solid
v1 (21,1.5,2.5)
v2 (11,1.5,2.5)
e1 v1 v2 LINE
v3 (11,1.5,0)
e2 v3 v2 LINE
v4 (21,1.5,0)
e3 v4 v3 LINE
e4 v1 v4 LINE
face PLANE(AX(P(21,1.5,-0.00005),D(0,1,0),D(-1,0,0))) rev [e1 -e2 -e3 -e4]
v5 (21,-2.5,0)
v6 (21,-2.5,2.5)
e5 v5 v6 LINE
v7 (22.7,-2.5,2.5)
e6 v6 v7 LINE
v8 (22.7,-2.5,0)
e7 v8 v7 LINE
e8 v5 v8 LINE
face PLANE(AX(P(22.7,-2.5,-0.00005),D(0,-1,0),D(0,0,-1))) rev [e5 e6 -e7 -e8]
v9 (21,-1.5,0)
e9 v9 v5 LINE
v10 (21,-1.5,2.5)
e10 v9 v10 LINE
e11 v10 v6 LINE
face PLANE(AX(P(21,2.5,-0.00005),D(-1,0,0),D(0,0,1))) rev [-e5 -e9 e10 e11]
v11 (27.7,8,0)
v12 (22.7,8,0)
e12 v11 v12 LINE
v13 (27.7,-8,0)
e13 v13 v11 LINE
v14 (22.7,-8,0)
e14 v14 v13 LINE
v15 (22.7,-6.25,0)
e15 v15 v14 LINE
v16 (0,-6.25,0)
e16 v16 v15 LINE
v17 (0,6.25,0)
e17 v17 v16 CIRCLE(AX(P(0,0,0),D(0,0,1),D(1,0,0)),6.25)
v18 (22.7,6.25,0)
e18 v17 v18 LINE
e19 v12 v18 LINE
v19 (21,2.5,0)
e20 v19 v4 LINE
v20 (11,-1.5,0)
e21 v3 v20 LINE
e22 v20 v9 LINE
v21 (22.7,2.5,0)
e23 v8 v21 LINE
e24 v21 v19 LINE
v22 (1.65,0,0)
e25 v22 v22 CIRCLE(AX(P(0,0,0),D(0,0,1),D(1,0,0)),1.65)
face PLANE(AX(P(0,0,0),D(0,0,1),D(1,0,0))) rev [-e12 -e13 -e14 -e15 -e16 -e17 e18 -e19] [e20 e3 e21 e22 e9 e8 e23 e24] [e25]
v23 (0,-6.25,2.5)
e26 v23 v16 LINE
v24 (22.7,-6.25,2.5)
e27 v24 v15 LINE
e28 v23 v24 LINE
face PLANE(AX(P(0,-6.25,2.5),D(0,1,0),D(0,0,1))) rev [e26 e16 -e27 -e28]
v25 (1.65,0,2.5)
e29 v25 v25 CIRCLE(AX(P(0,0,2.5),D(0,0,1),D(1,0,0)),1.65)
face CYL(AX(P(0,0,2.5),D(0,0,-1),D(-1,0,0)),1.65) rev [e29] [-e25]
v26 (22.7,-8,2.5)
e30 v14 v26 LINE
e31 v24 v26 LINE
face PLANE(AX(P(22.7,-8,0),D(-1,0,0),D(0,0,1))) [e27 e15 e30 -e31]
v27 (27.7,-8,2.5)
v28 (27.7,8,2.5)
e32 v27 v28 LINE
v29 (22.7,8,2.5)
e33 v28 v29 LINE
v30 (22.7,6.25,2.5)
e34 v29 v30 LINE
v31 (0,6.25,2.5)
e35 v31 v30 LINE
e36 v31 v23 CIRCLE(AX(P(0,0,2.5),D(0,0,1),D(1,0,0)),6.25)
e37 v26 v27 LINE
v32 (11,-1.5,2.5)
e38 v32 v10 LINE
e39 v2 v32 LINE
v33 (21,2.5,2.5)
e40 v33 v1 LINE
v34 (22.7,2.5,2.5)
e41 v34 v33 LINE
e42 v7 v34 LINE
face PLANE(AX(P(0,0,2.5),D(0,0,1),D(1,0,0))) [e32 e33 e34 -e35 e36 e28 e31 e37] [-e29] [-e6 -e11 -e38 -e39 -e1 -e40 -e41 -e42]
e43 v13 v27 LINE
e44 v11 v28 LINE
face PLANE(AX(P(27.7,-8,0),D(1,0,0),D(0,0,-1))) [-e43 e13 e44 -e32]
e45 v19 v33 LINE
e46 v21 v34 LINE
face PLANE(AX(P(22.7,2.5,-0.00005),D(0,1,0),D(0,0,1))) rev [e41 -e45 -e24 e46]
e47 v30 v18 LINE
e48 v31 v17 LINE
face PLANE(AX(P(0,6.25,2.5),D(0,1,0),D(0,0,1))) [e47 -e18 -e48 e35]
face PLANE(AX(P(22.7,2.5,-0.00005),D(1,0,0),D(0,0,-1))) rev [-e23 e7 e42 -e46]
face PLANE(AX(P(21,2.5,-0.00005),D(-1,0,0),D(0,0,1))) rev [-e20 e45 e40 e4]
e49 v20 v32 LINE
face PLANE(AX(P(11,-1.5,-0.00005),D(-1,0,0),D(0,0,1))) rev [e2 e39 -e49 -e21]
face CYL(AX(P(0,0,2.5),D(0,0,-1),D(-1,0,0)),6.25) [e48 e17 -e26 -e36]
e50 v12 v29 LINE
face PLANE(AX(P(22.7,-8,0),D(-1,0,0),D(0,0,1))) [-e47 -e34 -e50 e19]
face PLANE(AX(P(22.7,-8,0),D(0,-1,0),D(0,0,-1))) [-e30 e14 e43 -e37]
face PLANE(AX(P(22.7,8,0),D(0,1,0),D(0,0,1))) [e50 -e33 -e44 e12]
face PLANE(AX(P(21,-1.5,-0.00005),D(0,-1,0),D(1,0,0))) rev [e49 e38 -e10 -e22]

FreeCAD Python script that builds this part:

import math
import FreeCAD as App
import Part
import Sketcher
Q = App.Units.Quantity

doc = App.newDocument("Part")
body = doc.addObject("PartDesign::Body", "Body")

sketch1 = body.newObject("Sketcher::SketchObject", "Sketch")
sketch1.AttachmentSupport = (doc.getObject("XY_Plane"), [""])
sketch1.MapMode = "FlatFace"
sketch1.addGeometry(Part.ArcOfCircle(Part.Circle(App.Vector(0, 0, 0), App.Vector(0, 0, 1), 6.2), math.radians(90), math.radians(270)), False)
sketch1.addGeometry(Part.LineSegment(App.Vector(0, -6.2, 0), App.Vector(22.7, -6.2, 0)), False)
sketch1.addGeometry(Part.LineSegment(App.Vector(22.7, -6.2, 0), App.Vector(22.7, 6.2, 0)), False)
sketch1.addGeometry(Part.LineSegment(App.Vector(22.7, 6.2, 0), App.Vector(0, 6.2, 0)), False)
sketch1.addGeometry(Part.Circle(App.Vector(0, 0, 0), App.Vector(0, 0, 1), 1.6), False)
sketch1.addConstraint(Sketcher.Constraint("Tangent", 0, 2, 1, 1))
sketch1.addConstraint(Sketcher.Constraint("Coincident", 1, 2, 2, 1))
sketch1.addConstraint(Sketcher.Constraint("Coincident", 2, 2, 3, 1))
sketch1.addConstraint(Sketcher.Constraint("Tangent", 3, 2, 0, 1))
sketch1.addConstraint(Sketcher.Constraint("Horizontal", 1))
sketch1.addConstraint(Sketcher.Constraint("Vertical", 2))
sketch1.addConstraint(Sketcher.Constraint("Horizontal", 3))
sketch1.addConstraint(Sketcher.Constraint("Coincident", 0, 3, -1, 1))
sketch1.addConstraint(Sketcher.Constraint("Coincident", 4, 3, -1, 1))
sketch1.addConstraint(Sketcher.Constraint("Diameter", 4, Q("3.3 mm")))
sketch1.addConstraint(Sketcher.Constraint("Radius", 0, Q("6.25 mm")))
sketch1.addConstraint(Sketcher.Constraint("DistanceX", 1, 1, 1, 2, Q("22.7 mm")))
pad1 = body.newObject("PartDesign::Pad", "Pad")
pad1.Profile = sketch1
pad1.Length = 2.5

sketch2 = body.newObject("Sketcher::SketchObject", "Sketch001")
sketch2.AttachmentSupport = (doc.getObject("XY_Plane"), [""])
sketch2.MapMode = "FlatFace"
sketch2.AttachmentOffset = App.Placement(App.Vector(0, 0, 2.5), App.Rotation())
sketch2.addGeometry(Part.LineSegment(App.Vector(23, 8, 0), App.Vector(23, -8, 0)), False)
sketch2.addGeometry(Part.LineSegment(App.Vector(23, -8, 0), App.Vector(28, -8, 0)), False)
sketch2.addGeometry(Part.LineSegment(App.Vector(28, -8, 0), App.Vector(28, 8, 0)), False)
sketch2.addGeometry(Part.LineSegment(App.Vector(28, 8, 0), App.Vector(23, 8, 0)), False)
sketch2.addConstraint(Sketcher.Constraint("Coincident", 0, 2, 1, 1))
sketch2.addConstraint(Sketcher.Constraint("Coincident", 1, 2, 2, 1))
sketch2.addConstraint(Sketcher.Constraint("Coincident", 2, 2, 3, 1))
sketch2.addConstraint(Sketcher.Constraint("Coincident", 3, 2, 0, 1))
sketch2.addConstraint(Sketcher.Constraint("Vertical", 0))
sketch2.addConstraint(Sketcher.Constraint("Horizontal", 1))
sketch2.addConstraint(Sketcher.Constraint("Vertical", 2))
sketch2.addConstraint(Sketcher.Constraint("Horizontal", 3))
sketch2.addConstraint(Sketcher.Constraint("DistanceX", 1, 1, 1, 2, Q("5 mm")))
sketch2.addConstraint(Sketcher.Constraint("DistanceY", 0, 2, 0, 1, Q("16 mm")))
sketch2.addConstraint(Sketcher.Constraint("DistanceY", 0, 2, -1, 1, Q("8 mm")))
sketch2.addConstraint(Sketcher.Constraint("DistanceX", -1, 1, 0, 2, Q("22.7 mm")))
pad2 = body.newObject("PartDesign::Pad", "Pad001")
pad2.Profile = sketch2
pad2.Length = 2.5
pad2.Reversed = True

sketch3 = body.newObject("Sketcher::SketchObject", "Sketch002")
sketch3.AttachmentSupport = (doc.getObject("XY_Plane"), [""])
sketch3.MapMode = "FlatFace"
sketch3.AttachmentOffset = App.Placement(App.Vector(0, 0, 2.5), App.Rotation())
sketch3.addGeometry(Part.LineSegment(App.Vector(21, 2.5, 0), App.Vector(21, -2.5, 0)), False)
sketch3.addGeometry(Part.LineSegment(App.Vector(21, -2.5, 0), App.Vector(22.7, -2.5, 0)), False)
sketch3.addGeometry(Part.LineSegment(App.Vector(22.7, -2.5, 0), App.Vector(22.7, 2.5, 0)), False)
sketch3.addGeometry(Part.LineSegment(App.Vector(22.7, 2.5, 0), App.Vector(21, 2.5, 0)), False)
sketch3.addConstraint(Sketcher.Constraint("Coincident", 0, 2, 1, 1))
sketch3.addConstraint(Sketcher.Constraint("Coincident", 1, 2, 2, 1))
sketch3.addConstraint(Sketcher.Constraint("Coincident", 2, 2, 3, 1))
sketch3.addConstraint(Sketcher.Constraint("Coincident", 3, 2, 0, 1))
sketch3.addConstraint(Sketcher.Constraint("Vertical", 0))
sketch3.addConstraint(Sketcher.Constraint("Horizontal", 1))
sketch3.addConstraint(Sketcher.Constraint("Vertical", 2))
sketch3.addConstraint(Sketcher.Constraint("Horizontal", 3))
sketch3.addConstraint(Sketcher.Constraint("DistanceY", 0, 2, 0, 1, Q("5 mm")))
sketch3.addConstraint(Sketcher.Constraint("DistanceX", 1, 1, 1, 2, Q("1.7 mm")))
sketch3.addConstraint(Sketcher.Constraint("DistanceX", -1, 1, 0, 2, Q("21 mm")))
sketch3.addConstraint(Sketcher.Constraint("DistanceY", 0, 2, -1, 1, Q("2.5 mm")))
pocket1 = body.newObject("PartDesign::Pocket", "Pocket")
pocket1.Profile = sketch3
pocket1.Type = "ThroughAll"

sketch4 = body.newObject("Sketcher::SketchObject", "Sketch003")
sketch4.AttachmentSupport = (doc.getObject("XY_Plane"), [""])
sketch4.MapMode = "FlatFace"
sketch4.AttachmentOffset = App.Placement(App.Vector(0, 0, 2.5), App.Rotation())
sketch4.addGeometry(Part.LineSegment(App.Vector(11, 1.5, 0), App.Vector(11, -1.5, 0)), False)
sketch4.addGeometry(Part.LineSegment(App.Vector(11, -1.5, 0), App.Vector(21, -1.5, 0)), False)
sketch4.addGeometry(Part.LineSegment(App.Vector(21, -1.5, 0), App.Vector(21, 1.5, 0)), False)
sketch4.addGeometry(Part.LineSegment(App.Vector(21, 1.5, 0), App.Vector(11, 1.5, 0)), False)
sketch4.addConstraint(Sketcher.Constraint("Coincident", 0, 2, 1, 1))
sketch4.addConstraint(Sketcher.Constraint("Coincident", 1, 2, 2, 1))
sketch4.addConstraint(Sketcher.Constraint("Coincident", 2, 2, 3, 1))
sketch4.addConstraint(Sketcher.Constraint("Coincident", 3, 2, 0, 1))
sketch4.addConstraint(Sketcher.Constraint("Vertical", 0))
sketch4.addConstraint(Sketcher.Constraint("Horizontal", 1))
sketch4.addConstraint(Sketcher.Constraint("Vertical", 2))
sketch4.addConstraint(Sketcher.Constraint("Horizontal", 3))
sketch4.addConstraint(Sketcher.Constraint("DistanceX", 1, 1, 1, 2, Q("10 mm")))
sketch4.addConstraint(Sketcher.Constraint("DistanceY", 0, 2, 0, 1, Q("3 mm")))
sketch4.addConstraint(Sketcher.Constraint("DistanceX", -1, 1, 0, 2, Q("11 mm")))
sketch4.addConstraint(Sketcher.Constraint("DistanceY", 0, 2, -1, 1, Q("1.5 mm")))
pocket2 = body.newObject("PartDesign::Pocket", "Pocket001")
pocket2.Profile = sketch4
pocket2.Type = "ThroughAll"

doc.recompute()
